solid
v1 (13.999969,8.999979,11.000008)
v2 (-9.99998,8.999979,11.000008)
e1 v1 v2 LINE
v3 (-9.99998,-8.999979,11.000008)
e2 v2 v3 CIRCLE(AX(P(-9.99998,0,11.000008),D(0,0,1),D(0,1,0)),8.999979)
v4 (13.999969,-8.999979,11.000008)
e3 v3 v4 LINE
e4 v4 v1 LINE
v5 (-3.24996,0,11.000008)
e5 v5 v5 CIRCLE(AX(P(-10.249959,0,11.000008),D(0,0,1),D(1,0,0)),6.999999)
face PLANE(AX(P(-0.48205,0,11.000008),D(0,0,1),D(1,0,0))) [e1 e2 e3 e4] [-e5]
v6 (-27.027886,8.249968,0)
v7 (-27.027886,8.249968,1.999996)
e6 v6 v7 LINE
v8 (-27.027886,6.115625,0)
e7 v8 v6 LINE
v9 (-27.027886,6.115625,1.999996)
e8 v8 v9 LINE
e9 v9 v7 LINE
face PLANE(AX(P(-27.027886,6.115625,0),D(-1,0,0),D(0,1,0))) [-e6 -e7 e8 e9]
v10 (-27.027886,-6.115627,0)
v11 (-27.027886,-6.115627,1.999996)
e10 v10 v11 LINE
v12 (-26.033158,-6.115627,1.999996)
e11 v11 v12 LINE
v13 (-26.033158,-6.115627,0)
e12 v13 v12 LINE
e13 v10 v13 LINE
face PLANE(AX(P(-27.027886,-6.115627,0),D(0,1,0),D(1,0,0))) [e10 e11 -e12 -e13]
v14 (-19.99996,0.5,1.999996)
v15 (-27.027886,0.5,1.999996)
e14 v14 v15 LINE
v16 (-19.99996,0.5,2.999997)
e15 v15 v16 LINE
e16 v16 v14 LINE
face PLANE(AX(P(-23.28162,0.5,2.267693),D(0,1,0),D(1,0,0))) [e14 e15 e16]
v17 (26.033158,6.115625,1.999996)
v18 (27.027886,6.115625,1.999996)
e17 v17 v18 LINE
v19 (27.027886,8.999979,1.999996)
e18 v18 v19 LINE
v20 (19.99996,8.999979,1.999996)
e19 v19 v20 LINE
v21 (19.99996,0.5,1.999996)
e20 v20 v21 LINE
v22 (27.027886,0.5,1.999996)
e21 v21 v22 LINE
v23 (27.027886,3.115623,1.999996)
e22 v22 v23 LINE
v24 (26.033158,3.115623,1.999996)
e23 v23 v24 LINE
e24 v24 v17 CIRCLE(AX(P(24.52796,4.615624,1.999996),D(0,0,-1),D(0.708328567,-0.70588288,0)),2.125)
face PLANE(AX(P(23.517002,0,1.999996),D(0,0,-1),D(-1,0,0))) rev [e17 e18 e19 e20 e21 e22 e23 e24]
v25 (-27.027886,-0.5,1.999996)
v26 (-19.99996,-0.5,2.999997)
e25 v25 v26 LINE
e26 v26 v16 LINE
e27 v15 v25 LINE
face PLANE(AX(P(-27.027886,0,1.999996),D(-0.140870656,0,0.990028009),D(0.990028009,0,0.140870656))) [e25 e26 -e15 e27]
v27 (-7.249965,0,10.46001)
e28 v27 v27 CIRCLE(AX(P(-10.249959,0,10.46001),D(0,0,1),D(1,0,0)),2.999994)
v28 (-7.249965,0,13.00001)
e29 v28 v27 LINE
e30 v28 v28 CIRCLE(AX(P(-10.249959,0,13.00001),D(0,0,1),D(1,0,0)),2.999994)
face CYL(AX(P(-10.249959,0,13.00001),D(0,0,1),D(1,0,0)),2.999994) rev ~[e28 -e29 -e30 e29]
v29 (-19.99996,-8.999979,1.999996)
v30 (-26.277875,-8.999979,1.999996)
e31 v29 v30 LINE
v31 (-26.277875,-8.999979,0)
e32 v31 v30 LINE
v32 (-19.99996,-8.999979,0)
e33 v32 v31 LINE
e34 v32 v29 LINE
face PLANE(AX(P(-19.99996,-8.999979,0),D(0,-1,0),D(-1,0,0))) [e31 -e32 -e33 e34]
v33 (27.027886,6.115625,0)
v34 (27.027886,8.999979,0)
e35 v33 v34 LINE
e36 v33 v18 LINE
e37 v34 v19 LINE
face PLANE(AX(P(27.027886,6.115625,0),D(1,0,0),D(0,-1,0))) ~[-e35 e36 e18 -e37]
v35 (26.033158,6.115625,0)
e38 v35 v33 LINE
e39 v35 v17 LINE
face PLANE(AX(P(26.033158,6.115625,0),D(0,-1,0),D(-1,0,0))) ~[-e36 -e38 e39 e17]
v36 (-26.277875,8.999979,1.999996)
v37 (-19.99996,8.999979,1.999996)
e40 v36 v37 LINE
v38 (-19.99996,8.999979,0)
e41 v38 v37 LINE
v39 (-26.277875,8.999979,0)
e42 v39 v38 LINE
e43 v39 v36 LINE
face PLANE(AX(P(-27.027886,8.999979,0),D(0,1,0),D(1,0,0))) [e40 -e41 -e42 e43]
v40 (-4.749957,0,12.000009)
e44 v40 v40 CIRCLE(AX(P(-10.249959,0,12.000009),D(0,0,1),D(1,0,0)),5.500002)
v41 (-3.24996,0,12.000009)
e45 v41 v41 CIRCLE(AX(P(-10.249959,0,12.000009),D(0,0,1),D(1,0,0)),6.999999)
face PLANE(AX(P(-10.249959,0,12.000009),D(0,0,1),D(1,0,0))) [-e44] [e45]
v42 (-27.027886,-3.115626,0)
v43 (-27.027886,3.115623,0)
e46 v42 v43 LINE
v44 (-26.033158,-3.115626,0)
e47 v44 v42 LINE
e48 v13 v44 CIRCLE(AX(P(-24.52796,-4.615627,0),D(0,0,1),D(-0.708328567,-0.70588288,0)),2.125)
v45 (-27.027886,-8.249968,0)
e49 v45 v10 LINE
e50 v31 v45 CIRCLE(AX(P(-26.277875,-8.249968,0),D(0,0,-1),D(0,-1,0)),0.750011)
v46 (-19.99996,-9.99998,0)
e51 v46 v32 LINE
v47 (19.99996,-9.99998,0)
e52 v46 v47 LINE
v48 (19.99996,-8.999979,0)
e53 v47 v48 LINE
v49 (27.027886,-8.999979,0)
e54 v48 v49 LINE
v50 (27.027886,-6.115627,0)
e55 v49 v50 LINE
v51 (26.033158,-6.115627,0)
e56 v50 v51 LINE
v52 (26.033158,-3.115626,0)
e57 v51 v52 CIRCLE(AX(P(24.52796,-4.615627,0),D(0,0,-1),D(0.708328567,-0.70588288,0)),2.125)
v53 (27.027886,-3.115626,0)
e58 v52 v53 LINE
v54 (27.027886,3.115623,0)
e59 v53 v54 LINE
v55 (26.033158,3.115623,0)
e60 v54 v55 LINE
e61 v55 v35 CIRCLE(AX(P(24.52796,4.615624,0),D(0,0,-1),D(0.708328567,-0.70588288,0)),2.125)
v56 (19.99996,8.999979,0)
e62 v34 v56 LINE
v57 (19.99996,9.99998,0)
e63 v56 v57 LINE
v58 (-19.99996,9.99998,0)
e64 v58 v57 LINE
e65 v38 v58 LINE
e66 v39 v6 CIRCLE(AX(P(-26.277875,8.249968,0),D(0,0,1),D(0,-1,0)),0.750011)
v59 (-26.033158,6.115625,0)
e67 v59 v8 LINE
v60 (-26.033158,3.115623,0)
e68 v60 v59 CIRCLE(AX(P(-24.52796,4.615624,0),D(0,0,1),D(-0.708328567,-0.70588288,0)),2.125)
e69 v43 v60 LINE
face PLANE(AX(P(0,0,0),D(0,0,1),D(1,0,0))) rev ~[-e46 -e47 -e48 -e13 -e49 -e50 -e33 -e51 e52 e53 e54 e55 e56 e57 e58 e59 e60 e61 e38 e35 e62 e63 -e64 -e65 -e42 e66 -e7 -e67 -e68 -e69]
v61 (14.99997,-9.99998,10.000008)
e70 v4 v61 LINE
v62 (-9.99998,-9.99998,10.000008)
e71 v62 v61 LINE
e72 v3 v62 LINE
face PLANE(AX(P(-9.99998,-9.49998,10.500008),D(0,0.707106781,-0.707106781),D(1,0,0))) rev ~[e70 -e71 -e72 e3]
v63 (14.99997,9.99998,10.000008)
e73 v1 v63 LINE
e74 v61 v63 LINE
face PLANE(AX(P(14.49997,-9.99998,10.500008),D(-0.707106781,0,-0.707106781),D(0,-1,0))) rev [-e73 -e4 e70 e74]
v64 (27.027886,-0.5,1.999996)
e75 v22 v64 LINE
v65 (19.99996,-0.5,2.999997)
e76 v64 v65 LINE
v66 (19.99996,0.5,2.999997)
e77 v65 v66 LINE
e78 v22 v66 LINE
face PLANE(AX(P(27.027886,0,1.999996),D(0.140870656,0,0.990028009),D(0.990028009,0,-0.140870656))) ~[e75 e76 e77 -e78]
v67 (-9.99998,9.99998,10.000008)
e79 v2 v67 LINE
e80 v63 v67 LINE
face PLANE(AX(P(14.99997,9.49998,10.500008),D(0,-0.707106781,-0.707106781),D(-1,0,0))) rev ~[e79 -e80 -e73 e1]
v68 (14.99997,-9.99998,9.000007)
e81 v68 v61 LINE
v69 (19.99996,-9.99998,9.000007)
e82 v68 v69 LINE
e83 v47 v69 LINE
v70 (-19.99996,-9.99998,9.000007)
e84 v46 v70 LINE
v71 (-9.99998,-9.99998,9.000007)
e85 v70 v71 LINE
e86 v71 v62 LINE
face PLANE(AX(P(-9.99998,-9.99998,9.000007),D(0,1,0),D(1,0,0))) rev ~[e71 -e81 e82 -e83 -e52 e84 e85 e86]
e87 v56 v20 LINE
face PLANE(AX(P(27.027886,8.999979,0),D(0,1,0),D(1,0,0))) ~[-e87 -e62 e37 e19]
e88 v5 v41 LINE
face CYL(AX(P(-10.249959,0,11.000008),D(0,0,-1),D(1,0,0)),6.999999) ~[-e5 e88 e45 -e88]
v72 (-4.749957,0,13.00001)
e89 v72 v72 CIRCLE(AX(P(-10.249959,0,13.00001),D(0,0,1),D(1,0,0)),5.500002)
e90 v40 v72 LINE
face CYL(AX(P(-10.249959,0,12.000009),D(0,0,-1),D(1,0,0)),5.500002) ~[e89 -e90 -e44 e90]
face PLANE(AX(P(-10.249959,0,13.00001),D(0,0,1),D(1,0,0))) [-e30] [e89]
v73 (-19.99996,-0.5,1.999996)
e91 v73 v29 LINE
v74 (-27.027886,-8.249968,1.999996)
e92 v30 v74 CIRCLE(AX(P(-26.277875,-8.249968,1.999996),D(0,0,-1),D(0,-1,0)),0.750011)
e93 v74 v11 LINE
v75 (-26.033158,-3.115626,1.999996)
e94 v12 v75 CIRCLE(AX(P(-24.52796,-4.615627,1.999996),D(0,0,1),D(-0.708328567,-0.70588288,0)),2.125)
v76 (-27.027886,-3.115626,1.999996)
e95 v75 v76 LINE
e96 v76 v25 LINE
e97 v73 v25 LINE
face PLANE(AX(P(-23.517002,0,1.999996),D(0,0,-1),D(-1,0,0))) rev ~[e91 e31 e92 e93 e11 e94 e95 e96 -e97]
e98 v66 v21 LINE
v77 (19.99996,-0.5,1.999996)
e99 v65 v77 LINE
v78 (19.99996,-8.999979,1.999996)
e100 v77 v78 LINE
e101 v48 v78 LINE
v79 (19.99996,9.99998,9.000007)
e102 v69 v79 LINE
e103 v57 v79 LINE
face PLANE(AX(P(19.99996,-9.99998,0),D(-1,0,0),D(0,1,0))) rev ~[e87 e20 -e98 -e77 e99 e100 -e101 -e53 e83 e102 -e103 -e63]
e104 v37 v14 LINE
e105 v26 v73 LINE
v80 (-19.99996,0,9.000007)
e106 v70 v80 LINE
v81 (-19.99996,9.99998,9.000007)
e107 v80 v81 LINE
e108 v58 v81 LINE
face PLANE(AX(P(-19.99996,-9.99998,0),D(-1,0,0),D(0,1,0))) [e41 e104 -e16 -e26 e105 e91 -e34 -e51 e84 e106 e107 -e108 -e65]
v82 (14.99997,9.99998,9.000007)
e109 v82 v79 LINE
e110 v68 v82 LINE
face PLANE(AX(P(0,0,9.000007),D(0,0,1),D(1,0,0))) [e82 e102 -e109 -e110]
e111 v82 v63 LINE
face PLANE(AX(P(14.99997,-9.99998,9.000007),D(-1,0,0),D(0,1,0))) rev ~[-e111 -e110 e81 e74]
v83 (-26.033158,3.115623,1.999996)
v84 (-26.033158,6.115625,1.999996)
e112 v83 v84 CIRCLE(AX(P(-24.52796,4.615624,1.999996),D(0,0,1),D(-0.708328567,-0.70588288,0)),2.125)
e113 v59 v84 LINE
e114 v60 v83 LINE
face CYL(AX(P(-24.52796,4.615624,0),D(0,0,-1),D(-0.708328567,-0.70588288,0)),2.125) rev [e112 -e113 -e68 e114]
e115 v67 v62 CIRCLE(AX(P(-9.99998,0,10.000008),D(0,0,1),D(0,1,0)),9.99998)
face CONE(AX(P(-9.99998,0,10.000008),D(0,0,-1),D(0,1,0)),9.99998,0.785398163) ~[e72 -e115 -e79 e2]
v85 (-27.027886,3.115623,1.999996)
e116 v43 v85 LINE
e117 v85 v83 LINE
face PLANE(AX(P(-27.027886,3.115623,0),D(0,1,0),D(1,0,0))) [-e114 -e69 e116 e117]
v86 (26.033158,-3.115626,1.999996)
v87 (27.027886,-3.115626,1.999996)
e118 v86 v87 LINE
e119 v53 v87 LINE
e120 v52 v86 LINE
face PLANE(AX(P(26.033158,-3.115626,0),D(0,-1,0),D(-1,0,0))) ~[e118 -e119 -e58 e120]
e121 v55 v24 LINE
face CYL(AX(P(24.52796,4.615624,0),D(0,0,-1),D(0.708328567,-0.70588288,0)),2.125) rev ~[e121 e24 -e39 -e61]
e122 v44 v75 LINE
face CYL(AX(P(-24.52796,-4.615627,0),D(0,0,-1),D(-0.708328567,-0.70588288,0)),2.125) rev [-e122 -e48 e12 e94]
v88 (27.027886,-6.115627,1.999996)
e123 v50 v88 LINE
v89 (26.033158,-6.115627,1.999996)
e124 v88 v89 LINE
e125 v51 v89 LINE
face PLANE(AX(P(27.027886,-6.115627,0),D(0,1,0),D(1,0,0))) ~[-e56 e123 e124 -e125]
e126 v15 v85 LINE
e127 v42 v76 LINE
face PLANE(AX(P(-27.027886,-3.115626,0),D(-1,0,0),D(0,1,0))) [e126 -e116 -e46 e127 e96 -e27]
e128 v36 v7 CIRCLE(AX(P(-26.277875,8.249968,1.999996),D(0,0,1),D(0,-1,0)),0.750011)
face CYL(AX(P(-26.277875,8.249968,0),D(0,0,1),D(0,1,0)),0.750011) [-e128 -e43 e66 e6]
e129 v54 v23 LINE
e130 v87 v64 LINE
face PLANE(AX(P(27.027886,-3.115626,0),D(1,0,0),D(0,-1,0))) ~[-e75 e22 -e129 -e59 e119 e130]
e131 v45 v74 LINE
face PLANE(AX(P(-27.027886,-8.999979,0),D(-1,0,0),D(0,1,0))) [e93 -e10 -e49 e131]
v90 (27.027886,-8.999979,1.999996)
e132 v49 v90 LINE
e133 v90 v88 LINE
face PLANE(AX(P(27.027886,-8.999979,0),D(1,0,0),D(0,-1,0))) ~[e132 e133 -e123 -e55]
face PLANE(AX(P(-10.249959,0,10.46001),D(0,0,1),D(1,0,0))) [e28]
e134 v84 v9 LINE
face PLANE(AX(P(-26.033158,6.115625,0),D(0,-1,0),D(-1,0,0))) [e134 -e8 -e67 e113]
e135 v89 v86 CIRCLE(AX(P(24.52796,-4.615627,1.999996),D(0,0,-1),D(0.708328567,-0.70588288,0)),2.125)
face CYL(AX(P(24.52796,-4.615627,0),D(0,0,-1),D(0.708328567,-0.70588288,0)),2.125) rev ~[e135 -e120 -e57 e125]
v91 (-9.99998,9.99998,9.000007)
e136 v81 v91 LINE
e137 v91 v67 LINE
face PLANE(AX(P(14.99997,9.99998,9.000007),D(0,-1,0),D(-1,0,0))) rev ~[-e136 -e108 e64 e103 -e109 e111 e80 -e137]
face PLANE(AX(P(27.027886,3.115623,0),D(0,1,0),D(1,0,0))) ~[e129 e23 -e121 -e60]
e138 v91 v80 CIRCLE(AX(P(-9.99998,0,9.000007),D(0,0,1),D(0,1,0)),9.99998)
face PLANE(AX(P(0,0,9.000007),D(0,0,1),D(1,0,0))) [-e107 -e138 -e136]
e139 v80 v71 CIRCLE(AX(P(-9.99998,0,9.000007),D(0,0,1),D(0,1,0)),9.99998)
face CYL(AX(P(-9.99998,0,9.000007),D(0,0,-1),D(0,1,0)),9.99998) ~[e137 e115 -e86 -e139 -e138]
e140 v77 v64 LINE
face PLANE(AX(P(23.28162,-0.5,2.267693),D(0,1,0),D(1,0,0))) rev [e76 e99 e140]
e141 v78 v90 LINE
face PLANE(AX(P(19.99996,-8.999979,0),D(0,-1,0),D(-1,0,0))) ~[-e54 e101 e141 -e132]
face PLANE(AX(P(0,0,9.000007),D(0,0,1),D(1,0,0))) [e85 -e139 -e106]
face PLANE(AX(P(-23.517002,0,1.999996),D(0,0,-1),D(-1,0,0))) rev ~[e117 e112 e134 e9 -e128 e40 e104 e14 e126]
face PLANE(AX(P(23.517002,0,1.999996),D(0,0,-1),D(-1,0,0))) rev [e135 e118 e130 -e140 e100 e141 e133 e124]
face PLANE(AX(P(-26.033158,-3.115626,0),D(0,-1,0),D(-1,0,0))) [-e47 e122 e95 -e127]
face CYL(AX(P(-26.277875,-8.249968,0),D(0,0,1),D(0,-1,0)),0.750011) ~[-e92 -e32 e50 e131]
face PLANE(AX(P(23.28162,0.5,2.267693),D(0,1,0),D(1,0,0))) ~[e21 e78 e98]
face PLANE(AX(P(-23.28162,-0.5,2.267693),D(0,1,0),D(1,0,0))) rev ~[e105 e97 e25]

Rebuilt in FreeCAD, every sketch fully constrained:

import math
import FreeCAD as App
import Part
import Sketcher

V = App.Vector
Q = App.Units.Quantity


def edges_at(feature, points):
    """Names of the edges that pass closest to the given points."""
    edges = feature.Shape.Edges
    near = lambda p: min(range(len(edges)), key=lambda i: edges[i].distToShape(Part.Vertex(*p))[0])
    return sorted({f"Edge{near(p) + 1}" for p in points})

doc = App.newDocument("Part")
body = doc.addObject("PartDesign::Body", "Body")

sketch1 = doc.addObject("Sketcher::SketchObject", "Sketch")
body.addObject(sketch1)
sketch1.AttachmentSupport = (doc.XY_Plane, [""])
sketch1.MapMode = "FlatFace"
sketch1.addGeometry([
    Part.LineSegment(V(-20, 10, 0), V(-20, -10, 0)),
    Part.LineSegment(V(-20, -10, 0), V(20, -10, 0)),
    Part.LineSegment(V(20, -10, 0), V(20, 10, 0)),
    Part.LineSegment(V(20, 10, 0), V(-20, 10, 0)),
], False)
sketch1.addConstraint([
    Sketcher.Constraint("Coincident", 0, 2, 1, 1),
    Sketcher.Constraint("Coincident", 1, 2, 2, 1),
    Sketcher.Constraint("Coincident", 2, 2, 3, 1),
    Sketcher.Constraint("Coincident", 3, 2, 0, 1),
    Sketcher.Constraint("Vertical", 0),
    Sketcher.Constraint("Horizontal", 1),
    Sketcher.Constraint("Vertical", 2),
    Sketcher.Constraint("Horizontal", 3),
    Sketcher.Constraint("Symmetric", 0, 2, 2, 2, -1, 1),
    Sketcher.Constraint("DistanceX", 1, 1, 1, 2, Q("39.99992 mm")),
    Sketcher.Constraint("DistanceY", 0, 2, 0, 1, Q("19.99996 mm")),
])
pad1 = doc.addObject("PartDesign::Pad", "Pad")
body.addObject(pad1)
pad1.Profile = sketch1
pad1.Length = 9.000007

sketch2 = doc.addObject("Sketcher::SketchObject", "Sketch001")
body.addObject(sketch2)
sketch2.AttachmentSupport = (doc.XY_Plane, [""])
sketch2.MapMode = "FlatFace"
sketch2.AttachmentOffset = App.Placement(V(0, 0, 9.000007), App.Rotation())
sketch2.addGeometry([
    Part.LineSegment(V(15, 10, 0), V(-10, 10, 0)),
    Part.ArcOfCircle(Part.Circle(V(-10, 0, 0), V(0, 0, 1), 10), math.radians(90), math.radians(270)),
    Part.LineSegment(V(-10, -10, 0), V(15, -10, 0)),
    Part.LineSegment(V(15, -10, 0), V(15, 10, 0)),
], False)
sketch2.addConstraint([
    Sketcher.Constraint("Tangent", 0, 2, 1, 1),
    Sketcher.Constraint("Tangent", 1, 2, 2, 1),
    Sketcher.Constraint("Coincident", 2, 2, 3, 1),
    Sketcher.Constraint("Coincident", 3, 2, 0, 1),
    Sketcher.Constraint("Horizontal", 0),
    Sketcher.Constraint("Horizontal", 2),
    Sketcher.Constraint("Vertical", 3),
    Sketcher.Constraint("PointOnObject", 1, 3, -1),
    Sketcher.Constraint("Radius", 1, Q("9.99998 mm")),
    Sketcher.Constraint("DistanceX", 0, 2, 0, 1, Q("24.99995 mm")),
    Sketcher.Constraint("DistanceX", 1, 3, -1, 1, Q("9.99998 mm")),
])
pad2 = doc.addObject("PartDesign::Pad", "Pad001")
body.addObject(pad2)
pad2.Profile = sketch2
pad2.Length = 2.000001
doc.recompute()

chamfer = doc.addObject("PartDesign::Chamfer", "Chamfer")
body.addObject(chamfer)
chamfer.Base = (pad2, edges_at(pad2, [
    (2.5, -10, 11),
    (-20, 0, 11),
    (2.5, 10, 11),
    (15, 0, 11),
]))
chamfer.Size = 1.000001

sketch3 = doc.addObject("Sketcher::SketchObject", "Sketch002")
body.addObject(sketch3)
sketch3.AttachmentSupport = (doc.XY_Plane, [""])
sketch3.MapMode = "FlatFace"
sketch3.AttachmentOffset = App.Placement(V(0, 0, 11.000008), App.Rotation())
sketch3.addGeometry(Part.Circle(V(-10, 0, 0), V(0, 0, 1), 7), False)
sketch3.addConstraint([
    Sketcher.Constraint("PointOnObject", 0, 3, -1),
    Sketcher.Constraint("Diameter", 0, Q("13.999997 mm")),
    Sketcher.Constraint("DistanceX", 0, 3, -1, 1, Q("10.249959 mm")),
])
pad3 = doc.addObject("PartDesign::Pad", "Pad002")
body.addObject(pad3)
pad3.Profile = sketch3
pad3.Length = 1.000001

sketch4 = doc.addObject("Sketcher::SketchObject", "Sketch003")
body.addObject(sketch4)
sketch4.AttachmentSupport = (doc.XY_Plane, [""])
sketch4.MapMode = "FlatFace"
sketch4.AttachmentOffset = App.Placement(V(0, 0, 12.000009), App.Rotation())
sketch4.addGeometry(Part.Circle(V(-10, 0, 0), V(0, 0, 1), 6), False)
sketch4.addConstraint([
    Sketcher.Constraint("PointOnObject", 0, 3, -1),
    Sketcher.Constraint("Diameter", 0, Q("11.000003 mm")),
    Sketcher.Constraint("DistanceX", 0, 3, -1, 1, Q("10.249959 mm")),
])
pad4 = doc.addObject("PartDesign::Pad", "Pad003")
body.addObject(pad4)
pad4.Profile = sketch4
pad4.Length = 1.000001

sketch5 = doc.addObject("Sketcher::SketchObject", "Sketch004")
body.addObject(sketch5)
sketch5.AttachmentSupport = (doc.XY_Plane, [""])
sketch5.MapMode = "FlatFace"
sketch5.AttachmentOffset = App.Placement(V(0, 0, 13.00001), App.Rotation())
sketch5.addGeometry(Part.Circle(V(-10.2, 0, 0), V(0, 0, 1), 3), False)
sketch5.addConstraint([
    Sketcher.Constraint("PointOnObject", 0, 3, -1),
    Sketcher.Constraint("Diameter", 0, Q("5.999988 mm")),
    Sketcher.Constraint("DistanceX", 0, 3, -1, 1, Q("10.249959 mm")),
])
pocket1 = doc.addObject("PartDesign::Pocket", "Pocket")
body.addObject(pocket1)
pocket1.Profile = sketch5
pocket1.Length = 2.54

sketch6 = doc.addObject("Sketcher::SketchObject", "Sketch005")
body.addObject(sketch6)
sketch6.AttachmentSupport = (doc.XY_Plane, [""])
sketch6.MapMode = "FlatFace"
sketch6.addGeometry([
    Part.LineSegment(V(-27, 9, 0), V(-20, 9, 0)),
    Part.LineSegment(V(-20, 9, 0), V(-20, -9, 0)),
    Part.LineSegment(V(-20, -9, 0), V(-27, -9, 0)),
    Part.LineSegment(V(-27, -9, 0), V(-27, -6.1, 0)),
    Part.LineSegment(V(-27, -6.1, 0), V(-26, -6.1, 0)),
    Part.ArcOfCircle(Part.Circle(V(-24.5, -4.6, 0), V(0, 0, 1), 2.1), math.radians(-135), math.radians(135)),
    Part.LineSegment(V(-26, -3.1, 0), V(-27, -3.1, 0)),
    Part.LineSegment(V(-27, -3.1, 0), V(-27, 3.1, 0)),
    Part.LineSegment(V(-27, 3.1, 0), V(-26, 3.1, 0)),
    Part.ArcOfCircle(Part.Circle(V(-24.5, 4.6, 0), V(0, 0, 1), 2.1), math.radians(-135), math.radians(135)),
    Part.LineSegment(V(-26, 6.1, 0), V(-27, 6.1, 0)),
    Part.LineSegment(V(-27, 6.1, 0), V(-27, 9, 0)),
], False)
sketch6.addConstraint([
    Sketcher.Constraint("Coincident", 0, 2, 1, 1),
    Sketcher.Constraint("Coincident", 1, 2, 2, 1),
    Sketcher.Constraint("Coincident", 2, 2, 3, 1),
    Sketcher.Constraint("Coincident", 3, 2, 4, 1),
    Sketcher.Constraint("Coincident", 4, 2, 5, 1),
    Sketcher.Constraint("Coincident", 5, 2, 6, 1),
    Sketcher.Constraint("Coincident", 6, 2, 7, 1),
    Sketcher.Constraint("Coincident", 7, 2, 8, 1),
    Sketcher.Constraint("Coincident", 8, 2, 9, 1),
    Sketcher.Constraint("Coincident", 9, 2, 10, 1),
    Sketcher.Constraint("Coincident", 10, 2, 11, 1),
    Sketcher.Constraint("Coincident", 11, 2, 0, 1),
    Sketcher.Constraint("Horizontal", 0),
    Sketcher.Constraint("Vertical", 1),
    Sketcher.Constraint("Horizontal", 2),
    Sketcher.Constraint("Vertical", 3),
    Sketcher.Constraint("Horizontal", 4),
    Sketcher.Constraint("Horizontal", 6),
    Sketcher.Constraint("Vertical", 7),
    Sketcher.Constraint("Horizontal", 8),
    Sketcher.Constraint("Horizontal", 10),
    Sketcher.Constraint("Vertical", 11),
    Sketcher.Constraint("Equal", 5, 9),
    Sketcher.Constraint("Symmetric", 5, 3, 9, 3, -1),
    Sketcher.Constraint("Symmetric", 3, 2, 10, 2, -1),
    Sketcher.Constraint("Vertical", 4, 2, 5, 2),
    Sketcher.Constraint("Vertical", 3, 2, 6, 2),
    Sketcher.Constraint("Vertical", 5, 2, 8, 2),
    Sketcher.Constraint("Radius", 5, Q("2.125 mm")),
    Sketcher.Constraint("DistanceY", 4, 2, 5, 2, Q("3.000002 mm")),
    Sketcher.Constraint("DistanceX", 9, 3, 0, 2, Q("4.528 mm")),
    Sketcher.Constraint("DistanceX", 4, 1, 4, 2, Q("0.994728 mm")),
    Sketcher.Constraint("DistanceY", 1, 2, 1, 1, Q("17.999959 mm")),
    Sketcher.Constraint("DistanceY", 7, 1, 7, 2, Q("6.231249 mm")),
    Sketcher.Constraint("DistanceY", 3, 1, 3, 2, Q("2.884352 mm")),
    Sketcher.Constraint("DistanceX", 5, 3, -1, 1, Q("24.52796 mm")),
])
pad5 = doc.addObject("PartDesign::Pad", "Pad004")
body.addObject(pad5)
pad5.Profile = sketch6
pad5.Length = 1.999996
doc.recompute()

fillet = doc.addObject("PartDesign::Fillet", "Fillet")
body.addObject(fillet)
fillet.Base = (pad5, edges_at(pad5, [(-27.028, -9, 1), (-27.028, 9, 1)]))
fillet.Radius = 0.750011

sketch7 = doc.addObject("Sketcher::SketchObject", "Sketch006")
body.addObject(sketch7)
sketch7.AttachmentSupport = (doc.XZ_Plane, [""])
sketch7.MapMode = "FlatFace"
sketch7.addGeometry([
    Part.LineSegment(V(-27, 2, 0), V(-20, 3, 0)),
    Part.LineSegment(V(-20, 3, 0), V(-20, 2, 0)),
    Part.LineSegment(V(-20, 2, 0), V(-27, 2, 0)),
], False)
sketch7.addConstraint([
    Sketcher.Constraint("Coincident", 0, 2, 1, 1),
    Sketcher.Constraint("Coincident", 1, 2, 2, 1),
    Sketcher.Constraint("Coincident", 2, 2, 0, 1),
    Sketcher.Constraint("Vertical", 1),
    Sketcher.Constraint("Horizontal", 2),
    Sketcher.Constraint("DistanceY", 1, 2, 1, 1, Q("1.000001 mm")),
    Sketcher.Constraint("DistanceX", 2, 2, 2, 1, Q("7.027926 mm")),
    Sketcher.Constraint("DistanceX", 0, 2, -1, 1, Q("19.99996 mm")),
    Sketcher.Constraint("DistanceY", -1, 1, 0, 2, Q("2.999997 mm")),
])
pad6 = doc.addObject("PartDesign::Pad", "Pad005")
body.addObject(pad6)
pad6.Profile = sketch7
pad6.Length = 1.000001
pad6.Midplane = True
doc.recompute()

mirrored = doc.addObject("PartDesign::Mirrored", "Mirrored")
body.addObject(mirrored)
mirrored.Originals = [pad5, pad6]
mirrored.MirrorPlane = (doc.YZ_Plane, [""])
body.Tip = mirrored

doc.recompute()
